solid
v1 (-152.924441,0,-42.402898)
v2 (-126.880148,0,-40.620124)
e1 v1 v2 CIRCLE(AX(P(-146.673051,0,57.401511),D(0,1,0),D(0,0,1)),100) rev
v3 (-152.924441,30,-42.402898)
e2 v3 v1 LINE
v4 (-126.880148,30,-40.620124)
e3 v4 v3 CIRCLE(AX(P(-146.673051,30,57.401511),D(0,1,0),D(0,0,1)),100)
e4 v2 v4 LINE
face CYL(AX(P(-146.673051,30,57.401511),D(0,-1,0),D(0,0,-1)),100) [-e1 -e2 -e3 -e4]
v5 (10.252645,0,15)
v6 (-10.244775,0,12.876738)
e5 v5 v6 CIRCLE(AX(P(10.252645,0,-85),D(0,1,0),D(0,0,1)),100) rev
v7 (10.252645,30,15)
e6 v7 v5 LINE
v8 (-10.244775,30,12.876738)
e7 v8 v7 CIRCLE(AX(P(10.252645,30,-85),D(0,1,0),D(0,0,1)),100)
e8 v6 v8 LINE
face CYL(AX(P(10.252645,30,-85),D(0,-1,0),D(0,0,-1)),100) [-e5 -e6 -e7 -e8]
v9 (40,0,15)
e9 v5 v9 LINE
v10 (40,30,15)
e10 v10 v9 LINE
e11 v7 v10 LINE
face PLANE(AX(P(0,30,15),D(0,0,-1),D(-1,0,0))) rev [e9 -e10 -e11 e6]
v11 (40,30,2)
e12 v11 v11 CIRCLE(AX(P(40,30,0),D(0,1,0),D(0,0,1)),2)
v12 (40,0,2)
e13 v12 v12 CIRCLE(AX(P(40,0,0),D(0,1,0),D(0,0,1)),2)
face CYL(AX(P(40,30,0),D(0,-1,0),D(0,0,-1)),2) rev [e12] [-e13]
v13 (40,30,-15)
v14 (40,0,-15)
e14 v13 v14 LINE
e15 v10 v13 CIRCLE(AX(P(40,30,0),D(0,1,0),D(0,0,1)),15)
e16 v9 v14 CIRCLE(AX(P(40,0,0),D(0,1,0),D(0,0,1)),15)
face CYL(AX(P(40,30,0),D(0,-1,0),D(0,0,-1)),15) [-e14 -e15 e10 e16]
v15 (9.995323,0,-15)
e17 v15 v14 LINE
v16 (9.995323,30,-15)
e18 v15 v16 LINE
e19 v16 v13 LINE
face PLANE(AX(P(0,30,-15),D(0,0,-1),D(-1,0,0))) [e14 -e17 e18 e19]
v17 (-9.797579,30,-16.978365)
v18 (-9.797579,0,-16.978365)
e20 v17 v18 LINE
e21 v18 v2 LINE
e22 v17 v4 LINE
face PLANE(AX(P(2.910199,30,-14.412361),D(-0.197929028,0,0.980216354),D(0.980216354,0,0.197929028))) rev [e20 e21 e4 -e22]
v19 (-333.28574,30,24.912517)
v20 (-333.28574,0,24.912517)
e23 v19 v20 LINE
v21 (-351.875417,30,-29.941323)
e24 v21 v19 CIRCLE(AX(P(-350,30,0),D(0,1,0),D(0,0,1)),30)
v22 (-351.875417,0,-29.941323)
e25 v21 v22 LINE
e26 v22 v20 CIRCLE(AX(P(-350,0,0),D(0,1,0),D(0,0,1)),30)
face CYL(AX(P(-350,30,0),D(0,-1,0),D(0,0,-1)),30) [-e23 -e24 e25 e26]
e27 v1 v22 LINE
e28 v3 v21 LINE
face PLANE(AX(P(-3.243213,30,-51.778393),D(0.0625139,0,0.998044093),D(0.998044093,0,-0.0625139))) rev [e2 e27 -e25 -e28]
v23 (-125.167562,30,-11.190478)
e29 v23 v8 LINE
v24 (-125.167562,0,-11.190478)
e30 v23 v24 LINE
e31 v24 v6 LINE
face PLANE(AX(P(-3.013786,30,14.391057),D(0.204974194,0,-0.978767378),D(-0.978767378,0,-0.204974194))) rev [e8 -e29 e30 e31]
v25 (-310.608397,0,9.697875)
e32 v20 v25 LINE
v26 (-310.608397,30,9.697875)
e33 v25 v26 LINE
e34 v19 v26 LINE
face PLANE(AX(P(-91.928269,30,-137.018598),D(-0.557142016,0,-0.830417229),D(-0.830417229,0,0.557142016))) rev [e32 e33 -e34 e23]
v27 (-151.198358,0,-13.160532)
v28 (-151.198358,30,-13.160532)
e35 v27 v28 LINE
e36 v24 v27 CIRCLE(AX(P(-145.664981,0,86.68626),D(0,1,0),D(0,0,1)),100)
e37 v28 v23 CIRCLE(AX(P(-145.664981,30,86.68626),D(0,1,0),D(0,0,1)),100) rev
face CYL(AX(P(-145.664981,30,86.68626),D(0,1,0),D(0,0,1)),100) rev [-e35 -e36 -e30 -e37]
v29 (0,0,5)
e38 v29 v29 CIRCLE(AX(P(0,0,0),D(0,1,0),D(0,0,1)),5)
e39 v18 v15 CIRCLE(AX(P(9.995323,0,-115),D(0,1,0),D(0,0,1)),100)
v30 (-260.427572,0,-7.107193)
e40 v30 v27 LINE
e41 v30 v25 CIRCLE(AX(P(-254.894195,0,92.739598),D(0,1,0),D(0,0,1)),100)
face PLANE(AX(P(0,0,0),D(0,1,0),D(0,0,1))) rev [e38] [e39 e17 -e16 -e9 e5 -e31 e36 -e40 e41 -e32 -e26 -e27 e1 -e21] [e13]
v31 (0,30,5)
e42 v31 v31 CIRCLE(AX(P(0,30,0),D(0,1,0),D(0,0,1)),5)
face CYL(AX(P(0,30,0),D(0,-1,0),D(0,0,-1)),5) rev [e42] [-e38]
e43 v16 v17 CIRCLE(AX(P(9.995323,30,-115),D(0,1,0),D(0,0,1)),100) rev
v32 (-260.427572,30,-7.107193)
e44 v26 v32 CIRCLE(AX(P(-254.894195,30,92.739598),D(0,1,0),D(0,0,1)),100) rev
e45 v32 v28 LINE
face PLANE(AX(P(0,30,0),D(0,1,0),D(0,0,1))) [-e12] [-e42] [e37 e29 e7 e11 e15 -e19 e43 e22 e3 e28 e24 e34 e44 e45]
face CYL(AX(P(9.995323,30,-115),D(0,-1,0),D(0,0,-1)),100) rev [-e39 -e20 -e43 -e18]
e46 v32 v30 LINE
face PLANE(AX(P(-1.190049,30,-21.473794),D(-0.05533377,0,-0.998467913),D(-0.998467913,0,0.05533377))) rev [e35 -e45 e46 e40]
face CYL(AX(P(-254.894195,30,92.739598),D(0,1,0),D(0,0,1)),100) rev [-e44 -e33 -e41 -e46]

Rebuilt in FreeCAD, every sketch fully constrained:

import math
import FreeCAD as App
import Part
import Sketcher
from FreeCAD import Vector


def edges_at(feature, points):
    """Names of the edges that pass closest to the given points."""
    edges = feature.Shape.Edges
    near = lambda p: min(range(len(edges)), key=lambda i: edges[i].distToShape(Part.Vertex(*p))[0])
    return sorted({f"Edge{near(p) + 1}" for p in points})

doc = App.newDocument("Part")
body = doc.addObject("PartDesign::Body", "Body")

sketch1 = body.newObject("Sketcher::SketchObject", "Sketch")
sketch1.AttachmentSupport = (doc.getObject("XZ_Plane"), [""])
sketch1.MapMode = "FlatFace"
sketch1.addGeometry([
    Part.LineSegment(Vector(0, -15, 0), Vector(-139.784941, -43.225909, 0)),
    Part.LineSegment(Vector(-139.784941, -43.225909, 0), Vector(-351.875415, -29.941323, 0)),
    Part.ArcOfCircle(Part.Circle(Vector(-350, 0, 0), Vector(0, 0, 1), 30), math.radians(56.141621), math.radians(266.415884)),
    Part.LineSegment(Vector(-333.28574, 24.912517, 0), Vector(-287.823466, -5.588949, 0)),
    Part.LineSegment(Vector(-287.823466, -5.588949, 0), Vector(-138.053279, -13.889015, 0)),
    Part.LineSegment(Vector(-138.053279, -13.889015, 0), Vector(-5.919683, 13.782502, 0)),
    Part.LineSegment(Vector(-5.919683, 13.782502, 0), Vector(0, 15, 0)),
    Part.LineSegment(Vector(0, 15, 0), Vector(40, 15, 0)),
    Part.ArcOfCircle(Part.Circle(Vector(40, 0, 0), Vector(0, 0, 1), 15), math.radians(-90), math.radians(90)),
    Part.LineSegment(Vector(40, -15, 0), Vector(0, -15, 0)),
    Part.Circle(Vector(0, 0, 0), Vector(0, 0, 1), 5),
    Part.Circle(Vector(40, 0, 0), Vector(0, 0, 1), 2),
], False)
sketch1.addConstraint([
    Sketcher.Constraint("Coincident", 0, 2, 1, 1),
    Sketcher.Constraint("Tangent", 1, 2, 2, 2),
    Sketcher.Constraint("Tangent", 2, 1, 3, 1),
    Sketcher.Constraint("Coincident", 3, 2, 4, 1),
    Sketcher.Constraint("Coincident", 4, 2, 5, 1),
    Sketcher.Constraint("Coincident", 5, 2, 6, 1),
    Sketcher.Constraint("Coincident", 6, 2, 7, 1),
    Sketcher.Constraint("Tangent", 7, 2, 8, 2),
    Sketcher.Constraint("Tangent", 8, 1, 9, 1),
    Sketcher.Constraint("Coincident", 9, 2, 0, 1),
    Sketcher.Constraint("Horizontal", 7),
    Sketcher.Constraint("Horizontal", 9),
    Sketcher.Constraint("Coincident", 10, 3, -1, 1),
    Sketcher.Constraint("Coincident", 11, 3, 8, 3),
    Sketcher.Constraint("Symmetric", 6, 2, 9, 2, -1, 1),
    Sketcher.Constraint("PointOnObject", 2, 3, -1),
    Sketcher.Constraint("PointOnObject", 6, 2, -2),
    Sketcher.Constraint("Diameter", 10, 10.0),
    Sketcher.Constraint("Diameter", 11, 4.0),
    Sketcher.Constraint("Radius", 2, 30.0),
    Sketcher.Constraint("Radius", 8, 15.0),
    Sketcher.Constraint("DistanceX", 7, 1, 7, 2, 40.0),
    Sketcher.Constraint("Distance", 4, 150.0),
    Sketcher.Constraint("Distance", 5, 135.0),
    Sketcher.Constraint("DistanceX", 2, 3, -1, 1, 350.0),
    Sketcher.Constraint("DistanceY", -1, 1, 5, 2, 13.782502),
    Sketcher.Constraint("DistanceX", 2, 1, 0, 2, 193.500798),
    Sketcher.Constraint("DistanceX", 0, 2, -1, 1, 139.784941),
    Sketcher.Constraint("DistanceY", 0, 2, -1, 1, 43.225909),
    Sketcher.Constraint("DistanceY", 3, 2, -1, 1, 5.588949),
    Sketcher.Constraint("DistanceX", 4, 2, -1, 1, 138.053279),
])
pad1 = body.newObject("PartDesign::Pad", "Pad")
pad1.Profile = sketch1
pad1.Length = 30
pad1.Reversed = True
doc.recompute()

fillet = body.newObject("PartDesign::Fillet", "Fillet")
fillet.Base = (pad1, edges_at(pad1, [
    (0, 15, -15),
    (-139.785, 15, -43.226),
    (-138.053, 15, -13.889),
    (-287.823, 15, -5.589),
    (0, 15, 15),
]))
fillet.Radius = 100

doc.recompute()
